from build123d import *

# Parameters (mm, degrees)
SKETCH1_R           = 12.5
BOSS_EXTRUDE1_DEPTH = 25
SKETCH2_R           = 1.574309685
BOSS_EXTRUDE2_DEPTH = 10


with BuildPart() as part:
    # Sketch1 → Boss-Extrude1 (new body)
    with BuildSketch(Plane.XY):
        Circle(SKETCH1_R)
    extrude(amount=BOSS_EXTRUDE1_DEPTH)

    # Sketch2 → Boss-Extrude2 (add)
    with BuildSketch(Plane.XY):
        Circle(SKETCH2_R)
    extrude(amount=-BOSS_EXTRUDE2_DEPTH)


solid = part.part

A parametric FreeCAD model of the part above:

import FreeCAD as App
import Part
import Sketcher

V = App.Vector
Q = App.Units.Quantity

doc = App.newDocument("Part")
body = doc.addObject("PartDesign::Body", "Body")

# Sketch on XY plane
sketch1 = body.newObject("Sketcher::SketchObject", "Sketch")
sketch1.AttachmentSupport = (doc.getObject("XY_Plane"), [""])
sketch1.MapMode = "FlatFace"
sketch1.addGeometry(Part.Circle(V(0, 0, 0), V(0, 0, 1), 12.5), False)
sketch1.addConstraint([
    Sketcher.Constraint("Coincident", 0, 3, -1, 1),
    Sketcher.Constraint("Diameter", 0, Q("25 mm")),
])
pad1 = body.newObject("PartDesign::Pad", "Pad")
pad1.Profile = sketch1
pad1.Length = 25

# Sketch on XY plane
sketch2 = body.newObject("Sketcher::SketchObject", "Sketch001")
sketch2.AttachmentSupport = (doc.getObject("XY_Plane"), [""])
sketch2.MapMode = "FlatFace"
sketch2.addGeometry(Part.Circle(V(0, 0, 0), V(0, 0, 1), 1.57431), False)
sketch2.addConstraint([
    Sketcher.Constraint("Coincident", 0, 3, -1, 1),
    Sketcher.Constraint("Diameter", 0, Q("3.148619 mm")),
])
pad2 = body.newObject("PartDesign::Pad", "Pad001")
pad2.Profile = sketch2
pad2.Length = 10
pad2.Reversed = True

doc.recompute()
